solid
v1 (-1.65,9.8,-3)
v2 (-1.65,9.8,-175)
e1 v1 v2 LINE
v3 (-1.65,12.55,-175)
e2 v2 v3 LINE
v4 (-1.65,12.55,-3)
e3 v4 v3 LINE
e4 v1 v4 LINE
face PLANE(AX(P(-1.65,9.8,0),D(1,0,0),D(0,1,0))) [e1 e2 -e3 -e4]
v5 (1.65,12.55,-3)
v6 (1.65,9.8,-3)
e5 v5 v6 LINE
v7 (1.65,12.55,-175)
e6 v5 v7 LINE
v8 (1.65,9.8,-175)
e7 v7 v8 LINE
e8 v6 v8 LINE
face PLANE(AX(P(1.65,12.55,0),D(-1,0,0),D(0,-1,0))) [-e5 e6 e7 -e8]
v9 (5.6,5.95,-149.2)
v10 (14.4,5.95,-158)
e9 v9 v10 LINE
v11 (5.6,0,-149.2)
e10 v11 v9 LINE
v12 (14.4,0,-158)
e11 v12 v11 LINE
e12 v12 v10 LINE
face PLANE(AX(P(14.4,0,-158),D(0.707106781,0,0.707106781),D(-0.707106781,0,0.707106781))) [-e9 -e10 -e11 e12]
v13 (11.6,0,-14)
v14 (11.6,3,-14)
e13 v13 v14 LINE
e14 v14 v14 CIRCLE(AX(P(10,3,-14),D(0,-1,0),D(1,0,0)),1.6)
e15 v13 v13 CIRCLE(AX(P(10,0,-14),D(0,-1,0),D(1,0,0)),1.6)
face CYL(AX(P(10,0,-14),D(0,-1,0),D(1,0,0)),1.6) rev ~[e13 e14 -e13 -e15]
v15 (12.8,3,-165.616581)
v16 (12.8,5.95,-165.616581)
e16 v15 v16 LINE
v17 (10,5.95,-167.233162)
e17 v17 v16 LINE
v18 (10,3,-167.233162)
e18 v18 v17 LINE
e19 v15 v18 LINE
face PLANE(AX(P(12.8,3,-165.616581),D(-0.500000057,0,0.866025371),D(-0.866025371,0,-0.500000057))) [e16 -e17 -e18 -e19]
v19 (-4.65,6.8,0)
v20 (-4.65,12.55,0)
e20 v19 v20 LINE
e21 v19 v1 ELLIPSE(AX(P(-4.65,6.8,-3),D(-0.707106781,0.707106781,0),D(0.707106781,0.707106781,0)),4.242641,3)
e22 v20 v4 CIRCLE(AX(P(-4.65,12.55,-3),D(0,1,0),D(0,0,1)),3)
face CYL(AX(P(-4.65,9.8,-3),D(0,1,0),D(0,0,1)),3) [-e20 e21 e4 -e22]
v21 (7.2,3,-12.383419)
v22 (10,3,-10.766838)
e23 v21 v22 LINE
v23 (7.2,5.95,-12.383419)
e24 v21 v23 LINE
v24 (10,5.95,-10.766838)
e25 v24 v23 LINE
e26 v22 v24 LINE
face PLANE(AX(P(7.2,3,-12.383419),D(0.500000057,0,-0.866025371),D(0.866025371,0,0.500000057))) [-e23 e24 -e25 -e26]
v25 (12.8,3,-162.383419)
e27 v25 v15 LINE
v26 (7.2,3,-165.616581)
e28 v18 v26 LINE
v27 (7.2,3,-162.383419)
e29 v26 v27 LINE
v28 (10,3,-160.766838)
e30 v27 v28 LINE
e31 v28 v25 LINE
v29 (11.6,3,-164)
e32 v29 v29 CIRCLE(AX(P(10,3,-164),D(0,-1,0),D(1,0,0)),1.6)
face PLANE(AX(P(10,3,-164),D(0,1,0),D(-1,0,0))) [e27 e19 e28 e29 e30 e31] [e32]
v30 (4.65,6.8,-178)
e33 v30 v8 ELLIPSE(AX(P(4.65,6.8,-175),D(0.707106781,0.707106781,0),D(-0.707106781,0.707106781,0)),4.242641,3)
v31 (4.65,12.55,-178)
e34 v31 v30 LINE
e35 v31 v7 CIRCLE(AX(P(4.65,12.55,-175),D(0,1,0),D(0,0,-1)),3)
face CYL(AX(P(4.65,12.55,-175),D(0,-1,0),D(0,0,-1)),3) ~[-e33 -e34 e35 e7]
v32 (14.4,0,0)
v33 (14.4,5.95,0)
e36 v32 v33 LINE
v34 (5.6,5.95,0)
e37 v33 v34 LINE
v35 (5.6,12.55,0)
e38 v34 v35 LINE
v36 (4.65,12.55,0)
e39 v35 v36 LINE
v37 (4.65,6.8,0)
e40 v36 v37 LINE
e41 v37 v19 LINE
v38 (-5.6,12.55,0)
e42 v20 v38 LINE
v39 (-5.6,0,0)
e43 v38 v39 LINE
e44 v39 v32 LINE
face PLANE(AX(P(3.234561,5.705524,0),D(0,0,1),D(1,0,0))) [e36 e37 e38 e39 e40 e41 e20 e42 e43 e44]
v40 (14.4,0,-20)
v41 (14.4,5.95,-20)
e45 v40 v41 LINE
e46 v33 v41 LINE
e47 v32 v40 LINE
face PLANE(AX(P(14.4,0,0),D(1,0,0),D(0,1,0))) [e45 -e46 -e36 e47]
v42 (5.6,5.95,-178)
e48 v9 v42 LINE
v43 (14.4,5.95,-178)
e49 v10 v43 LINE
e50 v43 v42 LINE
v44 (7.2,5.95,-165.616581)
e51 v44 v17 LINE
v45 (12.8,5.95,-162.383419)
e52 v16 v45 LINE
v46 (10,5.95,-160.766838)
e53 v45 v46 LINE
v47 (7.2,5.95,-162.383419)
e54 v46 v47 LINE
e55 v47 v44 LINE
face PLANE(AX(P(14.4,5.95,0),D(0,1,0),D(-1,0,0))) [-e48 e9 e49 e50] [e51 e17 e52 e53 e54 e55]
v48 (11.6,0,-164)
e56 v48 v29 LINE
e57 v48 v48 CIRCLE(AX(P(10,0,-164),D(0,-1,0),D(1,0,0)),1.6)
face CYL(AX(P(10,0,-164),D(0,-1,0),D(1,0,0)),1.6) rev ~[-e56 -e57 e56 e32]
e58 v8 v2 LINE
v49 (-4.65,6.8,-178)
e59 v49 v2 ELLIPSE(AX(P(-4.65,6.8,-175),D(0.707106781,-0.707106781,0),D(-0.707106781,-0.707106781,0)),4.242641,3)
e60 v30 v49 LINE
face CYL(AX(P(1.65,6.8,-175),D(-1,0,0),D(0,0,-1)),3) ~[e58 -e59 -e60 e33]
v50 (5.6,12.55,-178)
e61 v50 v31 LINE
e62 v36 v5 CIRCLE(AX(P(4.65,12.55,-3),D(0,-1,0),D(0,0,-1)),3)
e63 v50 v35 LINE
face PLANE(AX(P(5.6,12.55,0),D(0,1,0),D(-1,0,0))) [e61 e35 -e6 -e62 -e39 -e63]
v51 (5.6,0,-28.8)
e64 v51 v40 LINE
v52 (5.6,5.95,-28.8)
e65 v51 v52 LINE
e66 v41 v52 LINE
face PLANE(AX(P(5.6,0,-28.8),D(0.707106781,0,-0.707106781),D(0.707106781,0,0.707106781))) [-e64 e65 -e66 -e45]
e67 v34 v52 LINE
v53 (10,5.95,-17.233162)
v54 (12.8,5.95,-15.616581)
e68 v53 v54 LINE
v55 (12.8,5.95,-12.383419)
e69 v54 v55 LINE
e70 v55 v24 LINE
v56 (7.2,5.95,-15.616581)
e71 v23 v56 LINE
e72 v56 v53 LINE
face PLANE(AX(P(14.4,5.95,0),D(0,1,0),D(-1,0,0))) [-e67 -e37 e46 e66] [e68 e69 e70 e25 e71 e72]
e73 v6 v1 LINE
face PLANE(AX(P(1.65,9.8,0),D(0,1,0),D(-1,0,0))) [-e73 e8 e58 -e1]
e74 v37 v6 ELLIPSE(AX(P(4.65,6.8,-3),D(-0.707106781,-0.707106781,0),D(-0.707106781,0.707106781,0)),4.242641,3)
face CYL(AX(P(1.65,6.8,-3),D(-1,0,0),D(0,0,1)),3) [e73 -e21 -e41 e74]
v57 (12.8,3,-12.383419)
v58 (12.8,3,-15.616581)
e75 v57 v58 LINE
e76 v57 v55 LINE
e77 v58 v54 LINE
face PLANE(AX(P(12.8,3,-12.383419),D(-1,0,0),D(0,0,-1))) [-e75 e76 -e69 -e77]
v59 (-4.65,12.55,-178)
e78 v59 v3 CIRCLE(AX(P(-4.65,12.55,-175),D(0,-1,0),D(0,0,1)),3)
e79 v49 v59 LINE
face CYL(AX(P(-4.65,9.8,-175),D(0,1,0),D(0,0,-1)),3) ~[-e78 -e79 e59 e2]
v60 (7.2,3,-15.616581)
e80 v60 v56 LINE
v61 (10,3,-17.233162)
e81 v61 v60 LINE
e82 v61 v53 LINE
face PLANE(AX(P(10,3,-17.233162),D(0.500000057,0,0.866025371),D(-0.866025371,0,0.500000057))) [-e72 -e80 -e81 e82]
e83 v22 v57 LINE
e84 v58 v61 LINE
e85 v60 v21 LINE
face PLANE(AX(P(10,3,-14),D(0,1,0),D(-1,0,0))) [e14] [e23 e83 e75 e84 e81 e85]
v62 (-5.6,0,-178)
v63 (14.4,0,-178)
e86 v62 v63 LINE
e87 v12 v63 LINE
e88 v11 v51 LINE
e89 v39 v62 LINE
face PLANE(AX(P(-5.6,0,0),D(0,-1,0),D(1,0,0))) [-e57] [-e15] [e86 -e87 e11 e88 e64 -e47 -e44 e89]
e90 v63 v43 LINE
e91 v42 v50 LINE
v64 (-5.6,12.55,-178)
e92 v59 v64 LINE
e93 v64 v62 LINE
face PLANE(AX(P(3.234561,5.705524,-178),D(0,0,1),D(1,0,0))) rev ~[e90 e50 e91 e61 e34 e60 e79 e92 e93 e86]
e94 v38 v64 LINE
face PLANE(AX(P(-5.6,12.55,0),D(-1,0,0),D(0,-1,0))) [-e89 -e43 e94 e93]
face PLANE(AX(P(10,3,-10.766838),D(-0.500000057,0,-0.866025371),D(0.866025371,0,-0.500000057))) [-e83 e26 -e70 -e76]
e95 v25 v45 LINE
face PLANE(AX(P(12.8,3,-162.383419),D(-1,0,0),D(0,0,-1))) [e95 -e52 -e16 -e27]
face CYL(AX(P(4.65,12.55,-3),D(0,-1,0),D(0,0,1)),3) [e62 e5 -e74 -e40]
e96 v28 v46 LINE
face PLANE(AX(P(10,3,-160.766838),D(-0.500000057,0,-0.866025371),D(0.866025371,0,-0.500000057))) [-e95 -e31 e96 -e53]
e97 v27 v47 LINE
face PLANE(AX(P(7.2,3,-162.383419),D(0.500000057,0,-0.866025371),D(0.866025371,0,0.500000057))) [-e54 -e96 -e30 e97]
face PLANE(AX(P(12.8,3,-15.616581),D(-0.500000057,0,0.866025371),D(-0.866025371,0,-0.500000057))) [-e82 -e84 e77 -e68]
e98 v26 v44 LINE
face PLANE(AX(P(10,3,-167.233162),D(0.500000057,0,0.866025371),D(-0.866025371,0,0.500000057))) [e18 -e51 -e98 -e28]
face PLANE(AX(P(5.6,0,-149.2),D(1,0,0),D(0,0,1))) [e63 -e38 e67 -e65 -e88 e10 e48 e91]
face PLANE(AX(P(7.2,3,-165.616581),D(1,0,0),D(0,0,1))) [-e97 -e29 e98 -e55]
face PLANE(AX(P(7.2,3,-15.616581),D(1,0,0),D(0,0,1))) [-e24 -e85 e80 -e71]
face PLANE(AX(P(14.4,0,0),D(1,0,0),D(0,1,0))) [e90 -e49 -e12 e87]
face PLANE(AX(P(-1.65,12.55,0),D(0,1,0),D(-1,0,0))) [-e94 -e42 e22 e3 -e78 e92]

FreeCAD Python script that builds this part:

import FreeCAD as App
import Part
import Sketcher
Q = App.Units.Quantity


def edges_at(feature, points):
    """Names of the edges that pass closest to the given points."""
    edges = feature.Shape.Edges
    near = lambda p: min(range(len(edges)), key=lambda i: edges[i].distToShape(Part.Vertex(*p))[0])
    return sorted({f"Edge{near(p) + 1}" for p in points})


def add_polygon(sketch, points):
    """Adds a closed chain of lines whose ends are joined by coincident constraints."""
    first, n = sketch.GeometryCount, len(points)
    for a, b in zip(points, points[1:] + points[:1]):
        sketch.addGeometry(Part.LineSegment(App.Vector(*a, 0), App.Vector(*b, 0)), False)
    for i in range(n):
        sketch.addConstraint(Sketcher.Constraint("Coincident", first + i, 2, first + (i + 1) % n, 1))

doc = App.newDocument("Part")
params = doc.addObject("Spreadsheet::Sheet", "Params")
for row, (alias, value) in enumerate([
    ("sketch1_width", "20 mm"),
    ("sketch1_width2", "8.8 mm"),
    ("sketch1_width3", "3.3 mm"),
    ("sketch1_height", "6.6 mm"),
    ("sketch1_height2", "5.95 mm"),
    ("pad1_length", "178 mm"),
    ("sketch2_diameter", "3.2 mm"),
    ("sketch2_height", "138 mm"),
    ("sketch2_height2", "120.4 mm"),
    ("pocket2_length", "5 mm"),
    ("fillet_radius", "3 mm"),
], start=1):
    params.set(f"A{row}", alias)
    params.set(f"B{row}", "=" + value)
    params.setAlias(f"B{row}", alias)

body = doc.addObject("PartDesign::Body", "Body")

sketch1 = body.newObject("Sketcher::SketchObject", "Sketch")
sketch1.AttachmentSupport = (doc.getObject("XY_Plane"), [""])
sketch1.MapMode = "FlatFace"
add_polygon(sketch1, [(-5.6, 0), (14.4, 0), (14.4, 6), (5.6, 6), (5.6, 12.6), (1.6, 12.6), (1.6, 9.8), (-1.6, 9.8), (-1.6, 12.6), (-5.6, 12.6)])
sketch1.addConstraint(Sketcher.Constraint("Horizontal", 0))
sketch1.addConstraint(Sketcher.Constraint("Vertical", 1))
sketch1.addConstraint(Sketcher.Constraint("Horizontal", 2))
sketch1.addConstraint(Sketcher.Constraint("Vertical", 3))
sketch1.addConstraint(Sketcher.Constraint("Horizontal", 4))
sketch1.addConstraint(Sketcher.Constraint("Vertical", 5))
sketch1.addConstraint(Sketcher.Constraint("Horizontal", 6))
sketch1.addConstraint(Sketcher.Constraint("Vertical", 7))
sketch1.addConstraint(Sketcher.Constraint("Horizontal", 8))
sketch1.addConstraint(Sketcher.Constraint("Vertical", 9))
sketch1.addConstraint(Sketcher.Constraint("Symmetric", 4, 2, 7, 2, -2))
sketch1.addConstraint(Sketcher.Constraint("PointOnObject", 0, 2, -1))
sketch1.addConstraint(Sketcher.Constraint("Equal", 4, 8))
sketch1.addConstraint(Sketcher.Constraint("DistanceX", 0, 1, 0, 2, Q("20 mm")))
sketch1.addConstraint(Sketcher.Constraint("DistanceX", 2, 2, 2, 1, Q("8.8 mm")))
sketch1.addConstraint(Sketcher.Constraint("DistanceX", 6, 2, 6, 1, Q("3.3 mm")))
sketch1.addConstraint(Sketcher.Constraint("DistanceY", 3, 1, 3, 2, Q("6.6 mm")))
sketch1.addConstraint(Sketcher.Constraint("DistanceY", 1, 1, 1, 2, Q("5.95 mm")))
sketch1.addConstraint(Sketcher.Constraint("DistanceY", 5, 2, 5, 1, Q("2.75 mm")))
sketch1.setExpression("Constraints[23]", "Params.sketch1_width")
sketch1.setExpression("Constraints[24]", "Params.sketch1_width2")
sketch1.setExpression("Constraints[25]", "Params.sketch1_width3")
sketch1.setExpression("Constraints[26]", "Params.sketch1_height")
sketch1.setExpression("Constraints[27]", "Params.sketch1_height2")
pad1 = body.newObject("PartDesign::Pad", "Pad")
pad1.Profile = sketch1
pad1.setExpression("Length", "Params.pad1_length")
pad1.Reversed = True

sketch2 = body.newObject("Sketcher::SketchObject", "Sketch001")
sketch2.AttachmentSupport = (doc.getObject("XZ_Plane"), [""])
sketch2.MapMode = "FlatFace"
sketch2.addGeometry(Part.Circle(App.Vector(10, -164, 0), App.Vector(0, 0, 1), 1.6), False)
sketch2.addGeometry(Part.Circle(App.Vector(10, -14, 0), App.Vector(0, 0, 1), 1.6), False)
add_polygon(sketch2, [(5.6, -149.2), (14.4, -158), (14.4, -20), (5.6, -28.8)])
sketch2.addConstraint(Sketcher.Constraint("Vertical", 3))
sketch2.addConstraint(Sketcher.Constraint("Vertical", 5))
sketch2.addConstraint(Sketcher.Constraint("Equal", 0, 1))
sketch2.addConstraint(Sketcher.Constraint("Perpendicular", 2, 4))
sketch2.addConstraint(Sketcher.Constraint("Vertical", 0, 3, 1, 3))
sketch2.addConstraint(Sketcher.Constraint("Equal", 2, 4))
sketch2.addConstraint(Sketcher.Constraint("Diameter", 0, Q("3.2 mm")))
sketch2.addConstraint(Sketcher.Constraint("DistanceY", 3, 1, 3, 2, Q("138 mm")))
sketch2.addConstraint(Sketcher.Constraint("DistanceY", 5, 2, 5, 1, Q("120.4 mm")))
sketch2.addConstraint(Sketcher.Constraint("DistanceX", -1, 1, 0, 3, Q("10 mm")))
sketch2.addConstraint(Sketcher.Constraint("DistanceY", 0, 3, -1, 1, Q("164 mm")))
sketch2.addConstraint(Sketcher.Constraint("DistanceY", 1, 3, -1, 1, Q("14 mm")))
sketch2.addConstraint(Sketcher.Constraint("DistanceY", 2, 2, -1, 1, Q("158 mm")))
sketch2.addConstraint(Sketcher.Constraint("DistanceX", -1, 1, 2, 2, Q("14.4 mm")))
sketch2.setExpression("Constraints[10]", "Params.sketch2_diameter")
sketch2.setExpression("Constraints[11]", "Params.sketch2_height")
sketch2.setExpression("Constraints[12]", "Params.sketch2_height2")
pocket1 = body.newObject("PartDesign::Pocket", "Pocket")
pocket1.Profile = sketch2
pocket1.Type = "ThroughAll"

sketch3 = body.newObject("Sketcher::SketchObject", "Sketch002")
sketch3.AttachmentSupport = (doc.getObject("XZ_Plane"), [""])
sketch3.MapMode = "FlatFace"
sketch3.AttachmentOffset = App.Placement(App.Vector(0, 0, -3), App.Rotation())
add_polygon(sketch3, [(7.2, -15.6), (7.2, -12.4), (10, -10.8), (12.8, -12.4), (12.8, -15.6), (10, -17.2)])
add_polygon(sketch3, [(7.2, -165.6), (7.2, -162.4), (10, -160.8), (12.8, -162.4), (12.8, -165.6), (10, -167.2)])
sketch3.addConstraint(Sketcher.Constraint("Vertical", 0))
sketch3.addConstraint(Sketcher.Constraint("Vertical", 3))
sketch3.addConstraint(Sketcher.Constraint("Vertical", 6))
sketch3.addConstraint(Sketcher.Constraint("Vertical", 9))
sketch3.addConstraint(Sketcher.Constraint("Parallel", 1, 4))
sketch3.addConstraint(Sketcher.Constraint("Parallel", 2, 5))
sketch3.addConstraint(Sketcher.Constraint("Parallel", 4, 7))
sketch3.addConstraint(Sketcher.Constraint("Parallel", 5, 8))
sketch3.addConstraint(Sketcher.Constraint("Parallel", 7, 10))
sketch3.addConstraint(Sketcher.Constraint("Parallel", 8, 11))
sketch3.addConstraint(Sketcher.Constraint("Horizontal", 0, 2, 2, 2))
sketch3.addConstraint(Sketcher.Constraint("Horizontal", 3, 2, 5, 2))
sketch3.addConstraint(Sketcher.Constraint("Horizontal", 6, 2, 8, 2))
sketch3.addConstraint(Sketcher.Constraint("Horizontal", 9, 2, 11, 2))
sketch3.addConstraint(Sketcher.Constraint("Vertical", 1, 2, 4, 2))
sketch3.addConstraint(Sketcher.Constraint("Vertical", 5, 2, 6, 2))
sketch3.addConstraint(Sketcher.Constraint("Vertical", 4, 2, 7, 2))
sketch3.addConstraint(Sketcher.Constraint("Equal", 3, 6))
sketch3.addConstraint(Sketcher.Constraint("Angle", 1, Q("30.000004 deg")))
sketch3.addConstraint(Sketcher.Constraint("DistanceX", -1, 1, 1, 2, Q("10 mm")))
sketch3.addConstraint(Sketcher.Constraint("DistanceY", 6, 2, 0, 2, Q("150 mm")))
sketch3.addConstraint(Sketcher.Constraint("DistanceX", -1, 1, 0, 2, Q("7.2 mm")))
sketch3.addConstraint(Sketcher.Constraint("DistanceY", 6, 1, 6, 2, Q("3.233162 mm")))
sketch3.addConstraint(Sketcher.Constraint("DistanceY", 0, 2, -1, 1, Q("12.383419 mm")))
pocket2 = body.newObject("PartDesign::Pocket", "Pocket001")
pocket2.Profile = sketch3
pocket2.setExpression("Length", "Params.pocket2_length")
doc.recompute()

fillet = body.newObject("PartDesign::Fillet", "Fillet")
fillet.Base = (pocket2, edges_at(pocket2, [
    (-1.65, 11.175, 0),
    (0, 9.8, 0),
    (1.65, 11.175, 0),
    (0, 9.8, -178),
    (-1.65, 11.175, -178),
    (1.65, 11.175, -178),
]))
fillet.setExpression("Radius", "Params.fillet_radius")

doc.recompute()
